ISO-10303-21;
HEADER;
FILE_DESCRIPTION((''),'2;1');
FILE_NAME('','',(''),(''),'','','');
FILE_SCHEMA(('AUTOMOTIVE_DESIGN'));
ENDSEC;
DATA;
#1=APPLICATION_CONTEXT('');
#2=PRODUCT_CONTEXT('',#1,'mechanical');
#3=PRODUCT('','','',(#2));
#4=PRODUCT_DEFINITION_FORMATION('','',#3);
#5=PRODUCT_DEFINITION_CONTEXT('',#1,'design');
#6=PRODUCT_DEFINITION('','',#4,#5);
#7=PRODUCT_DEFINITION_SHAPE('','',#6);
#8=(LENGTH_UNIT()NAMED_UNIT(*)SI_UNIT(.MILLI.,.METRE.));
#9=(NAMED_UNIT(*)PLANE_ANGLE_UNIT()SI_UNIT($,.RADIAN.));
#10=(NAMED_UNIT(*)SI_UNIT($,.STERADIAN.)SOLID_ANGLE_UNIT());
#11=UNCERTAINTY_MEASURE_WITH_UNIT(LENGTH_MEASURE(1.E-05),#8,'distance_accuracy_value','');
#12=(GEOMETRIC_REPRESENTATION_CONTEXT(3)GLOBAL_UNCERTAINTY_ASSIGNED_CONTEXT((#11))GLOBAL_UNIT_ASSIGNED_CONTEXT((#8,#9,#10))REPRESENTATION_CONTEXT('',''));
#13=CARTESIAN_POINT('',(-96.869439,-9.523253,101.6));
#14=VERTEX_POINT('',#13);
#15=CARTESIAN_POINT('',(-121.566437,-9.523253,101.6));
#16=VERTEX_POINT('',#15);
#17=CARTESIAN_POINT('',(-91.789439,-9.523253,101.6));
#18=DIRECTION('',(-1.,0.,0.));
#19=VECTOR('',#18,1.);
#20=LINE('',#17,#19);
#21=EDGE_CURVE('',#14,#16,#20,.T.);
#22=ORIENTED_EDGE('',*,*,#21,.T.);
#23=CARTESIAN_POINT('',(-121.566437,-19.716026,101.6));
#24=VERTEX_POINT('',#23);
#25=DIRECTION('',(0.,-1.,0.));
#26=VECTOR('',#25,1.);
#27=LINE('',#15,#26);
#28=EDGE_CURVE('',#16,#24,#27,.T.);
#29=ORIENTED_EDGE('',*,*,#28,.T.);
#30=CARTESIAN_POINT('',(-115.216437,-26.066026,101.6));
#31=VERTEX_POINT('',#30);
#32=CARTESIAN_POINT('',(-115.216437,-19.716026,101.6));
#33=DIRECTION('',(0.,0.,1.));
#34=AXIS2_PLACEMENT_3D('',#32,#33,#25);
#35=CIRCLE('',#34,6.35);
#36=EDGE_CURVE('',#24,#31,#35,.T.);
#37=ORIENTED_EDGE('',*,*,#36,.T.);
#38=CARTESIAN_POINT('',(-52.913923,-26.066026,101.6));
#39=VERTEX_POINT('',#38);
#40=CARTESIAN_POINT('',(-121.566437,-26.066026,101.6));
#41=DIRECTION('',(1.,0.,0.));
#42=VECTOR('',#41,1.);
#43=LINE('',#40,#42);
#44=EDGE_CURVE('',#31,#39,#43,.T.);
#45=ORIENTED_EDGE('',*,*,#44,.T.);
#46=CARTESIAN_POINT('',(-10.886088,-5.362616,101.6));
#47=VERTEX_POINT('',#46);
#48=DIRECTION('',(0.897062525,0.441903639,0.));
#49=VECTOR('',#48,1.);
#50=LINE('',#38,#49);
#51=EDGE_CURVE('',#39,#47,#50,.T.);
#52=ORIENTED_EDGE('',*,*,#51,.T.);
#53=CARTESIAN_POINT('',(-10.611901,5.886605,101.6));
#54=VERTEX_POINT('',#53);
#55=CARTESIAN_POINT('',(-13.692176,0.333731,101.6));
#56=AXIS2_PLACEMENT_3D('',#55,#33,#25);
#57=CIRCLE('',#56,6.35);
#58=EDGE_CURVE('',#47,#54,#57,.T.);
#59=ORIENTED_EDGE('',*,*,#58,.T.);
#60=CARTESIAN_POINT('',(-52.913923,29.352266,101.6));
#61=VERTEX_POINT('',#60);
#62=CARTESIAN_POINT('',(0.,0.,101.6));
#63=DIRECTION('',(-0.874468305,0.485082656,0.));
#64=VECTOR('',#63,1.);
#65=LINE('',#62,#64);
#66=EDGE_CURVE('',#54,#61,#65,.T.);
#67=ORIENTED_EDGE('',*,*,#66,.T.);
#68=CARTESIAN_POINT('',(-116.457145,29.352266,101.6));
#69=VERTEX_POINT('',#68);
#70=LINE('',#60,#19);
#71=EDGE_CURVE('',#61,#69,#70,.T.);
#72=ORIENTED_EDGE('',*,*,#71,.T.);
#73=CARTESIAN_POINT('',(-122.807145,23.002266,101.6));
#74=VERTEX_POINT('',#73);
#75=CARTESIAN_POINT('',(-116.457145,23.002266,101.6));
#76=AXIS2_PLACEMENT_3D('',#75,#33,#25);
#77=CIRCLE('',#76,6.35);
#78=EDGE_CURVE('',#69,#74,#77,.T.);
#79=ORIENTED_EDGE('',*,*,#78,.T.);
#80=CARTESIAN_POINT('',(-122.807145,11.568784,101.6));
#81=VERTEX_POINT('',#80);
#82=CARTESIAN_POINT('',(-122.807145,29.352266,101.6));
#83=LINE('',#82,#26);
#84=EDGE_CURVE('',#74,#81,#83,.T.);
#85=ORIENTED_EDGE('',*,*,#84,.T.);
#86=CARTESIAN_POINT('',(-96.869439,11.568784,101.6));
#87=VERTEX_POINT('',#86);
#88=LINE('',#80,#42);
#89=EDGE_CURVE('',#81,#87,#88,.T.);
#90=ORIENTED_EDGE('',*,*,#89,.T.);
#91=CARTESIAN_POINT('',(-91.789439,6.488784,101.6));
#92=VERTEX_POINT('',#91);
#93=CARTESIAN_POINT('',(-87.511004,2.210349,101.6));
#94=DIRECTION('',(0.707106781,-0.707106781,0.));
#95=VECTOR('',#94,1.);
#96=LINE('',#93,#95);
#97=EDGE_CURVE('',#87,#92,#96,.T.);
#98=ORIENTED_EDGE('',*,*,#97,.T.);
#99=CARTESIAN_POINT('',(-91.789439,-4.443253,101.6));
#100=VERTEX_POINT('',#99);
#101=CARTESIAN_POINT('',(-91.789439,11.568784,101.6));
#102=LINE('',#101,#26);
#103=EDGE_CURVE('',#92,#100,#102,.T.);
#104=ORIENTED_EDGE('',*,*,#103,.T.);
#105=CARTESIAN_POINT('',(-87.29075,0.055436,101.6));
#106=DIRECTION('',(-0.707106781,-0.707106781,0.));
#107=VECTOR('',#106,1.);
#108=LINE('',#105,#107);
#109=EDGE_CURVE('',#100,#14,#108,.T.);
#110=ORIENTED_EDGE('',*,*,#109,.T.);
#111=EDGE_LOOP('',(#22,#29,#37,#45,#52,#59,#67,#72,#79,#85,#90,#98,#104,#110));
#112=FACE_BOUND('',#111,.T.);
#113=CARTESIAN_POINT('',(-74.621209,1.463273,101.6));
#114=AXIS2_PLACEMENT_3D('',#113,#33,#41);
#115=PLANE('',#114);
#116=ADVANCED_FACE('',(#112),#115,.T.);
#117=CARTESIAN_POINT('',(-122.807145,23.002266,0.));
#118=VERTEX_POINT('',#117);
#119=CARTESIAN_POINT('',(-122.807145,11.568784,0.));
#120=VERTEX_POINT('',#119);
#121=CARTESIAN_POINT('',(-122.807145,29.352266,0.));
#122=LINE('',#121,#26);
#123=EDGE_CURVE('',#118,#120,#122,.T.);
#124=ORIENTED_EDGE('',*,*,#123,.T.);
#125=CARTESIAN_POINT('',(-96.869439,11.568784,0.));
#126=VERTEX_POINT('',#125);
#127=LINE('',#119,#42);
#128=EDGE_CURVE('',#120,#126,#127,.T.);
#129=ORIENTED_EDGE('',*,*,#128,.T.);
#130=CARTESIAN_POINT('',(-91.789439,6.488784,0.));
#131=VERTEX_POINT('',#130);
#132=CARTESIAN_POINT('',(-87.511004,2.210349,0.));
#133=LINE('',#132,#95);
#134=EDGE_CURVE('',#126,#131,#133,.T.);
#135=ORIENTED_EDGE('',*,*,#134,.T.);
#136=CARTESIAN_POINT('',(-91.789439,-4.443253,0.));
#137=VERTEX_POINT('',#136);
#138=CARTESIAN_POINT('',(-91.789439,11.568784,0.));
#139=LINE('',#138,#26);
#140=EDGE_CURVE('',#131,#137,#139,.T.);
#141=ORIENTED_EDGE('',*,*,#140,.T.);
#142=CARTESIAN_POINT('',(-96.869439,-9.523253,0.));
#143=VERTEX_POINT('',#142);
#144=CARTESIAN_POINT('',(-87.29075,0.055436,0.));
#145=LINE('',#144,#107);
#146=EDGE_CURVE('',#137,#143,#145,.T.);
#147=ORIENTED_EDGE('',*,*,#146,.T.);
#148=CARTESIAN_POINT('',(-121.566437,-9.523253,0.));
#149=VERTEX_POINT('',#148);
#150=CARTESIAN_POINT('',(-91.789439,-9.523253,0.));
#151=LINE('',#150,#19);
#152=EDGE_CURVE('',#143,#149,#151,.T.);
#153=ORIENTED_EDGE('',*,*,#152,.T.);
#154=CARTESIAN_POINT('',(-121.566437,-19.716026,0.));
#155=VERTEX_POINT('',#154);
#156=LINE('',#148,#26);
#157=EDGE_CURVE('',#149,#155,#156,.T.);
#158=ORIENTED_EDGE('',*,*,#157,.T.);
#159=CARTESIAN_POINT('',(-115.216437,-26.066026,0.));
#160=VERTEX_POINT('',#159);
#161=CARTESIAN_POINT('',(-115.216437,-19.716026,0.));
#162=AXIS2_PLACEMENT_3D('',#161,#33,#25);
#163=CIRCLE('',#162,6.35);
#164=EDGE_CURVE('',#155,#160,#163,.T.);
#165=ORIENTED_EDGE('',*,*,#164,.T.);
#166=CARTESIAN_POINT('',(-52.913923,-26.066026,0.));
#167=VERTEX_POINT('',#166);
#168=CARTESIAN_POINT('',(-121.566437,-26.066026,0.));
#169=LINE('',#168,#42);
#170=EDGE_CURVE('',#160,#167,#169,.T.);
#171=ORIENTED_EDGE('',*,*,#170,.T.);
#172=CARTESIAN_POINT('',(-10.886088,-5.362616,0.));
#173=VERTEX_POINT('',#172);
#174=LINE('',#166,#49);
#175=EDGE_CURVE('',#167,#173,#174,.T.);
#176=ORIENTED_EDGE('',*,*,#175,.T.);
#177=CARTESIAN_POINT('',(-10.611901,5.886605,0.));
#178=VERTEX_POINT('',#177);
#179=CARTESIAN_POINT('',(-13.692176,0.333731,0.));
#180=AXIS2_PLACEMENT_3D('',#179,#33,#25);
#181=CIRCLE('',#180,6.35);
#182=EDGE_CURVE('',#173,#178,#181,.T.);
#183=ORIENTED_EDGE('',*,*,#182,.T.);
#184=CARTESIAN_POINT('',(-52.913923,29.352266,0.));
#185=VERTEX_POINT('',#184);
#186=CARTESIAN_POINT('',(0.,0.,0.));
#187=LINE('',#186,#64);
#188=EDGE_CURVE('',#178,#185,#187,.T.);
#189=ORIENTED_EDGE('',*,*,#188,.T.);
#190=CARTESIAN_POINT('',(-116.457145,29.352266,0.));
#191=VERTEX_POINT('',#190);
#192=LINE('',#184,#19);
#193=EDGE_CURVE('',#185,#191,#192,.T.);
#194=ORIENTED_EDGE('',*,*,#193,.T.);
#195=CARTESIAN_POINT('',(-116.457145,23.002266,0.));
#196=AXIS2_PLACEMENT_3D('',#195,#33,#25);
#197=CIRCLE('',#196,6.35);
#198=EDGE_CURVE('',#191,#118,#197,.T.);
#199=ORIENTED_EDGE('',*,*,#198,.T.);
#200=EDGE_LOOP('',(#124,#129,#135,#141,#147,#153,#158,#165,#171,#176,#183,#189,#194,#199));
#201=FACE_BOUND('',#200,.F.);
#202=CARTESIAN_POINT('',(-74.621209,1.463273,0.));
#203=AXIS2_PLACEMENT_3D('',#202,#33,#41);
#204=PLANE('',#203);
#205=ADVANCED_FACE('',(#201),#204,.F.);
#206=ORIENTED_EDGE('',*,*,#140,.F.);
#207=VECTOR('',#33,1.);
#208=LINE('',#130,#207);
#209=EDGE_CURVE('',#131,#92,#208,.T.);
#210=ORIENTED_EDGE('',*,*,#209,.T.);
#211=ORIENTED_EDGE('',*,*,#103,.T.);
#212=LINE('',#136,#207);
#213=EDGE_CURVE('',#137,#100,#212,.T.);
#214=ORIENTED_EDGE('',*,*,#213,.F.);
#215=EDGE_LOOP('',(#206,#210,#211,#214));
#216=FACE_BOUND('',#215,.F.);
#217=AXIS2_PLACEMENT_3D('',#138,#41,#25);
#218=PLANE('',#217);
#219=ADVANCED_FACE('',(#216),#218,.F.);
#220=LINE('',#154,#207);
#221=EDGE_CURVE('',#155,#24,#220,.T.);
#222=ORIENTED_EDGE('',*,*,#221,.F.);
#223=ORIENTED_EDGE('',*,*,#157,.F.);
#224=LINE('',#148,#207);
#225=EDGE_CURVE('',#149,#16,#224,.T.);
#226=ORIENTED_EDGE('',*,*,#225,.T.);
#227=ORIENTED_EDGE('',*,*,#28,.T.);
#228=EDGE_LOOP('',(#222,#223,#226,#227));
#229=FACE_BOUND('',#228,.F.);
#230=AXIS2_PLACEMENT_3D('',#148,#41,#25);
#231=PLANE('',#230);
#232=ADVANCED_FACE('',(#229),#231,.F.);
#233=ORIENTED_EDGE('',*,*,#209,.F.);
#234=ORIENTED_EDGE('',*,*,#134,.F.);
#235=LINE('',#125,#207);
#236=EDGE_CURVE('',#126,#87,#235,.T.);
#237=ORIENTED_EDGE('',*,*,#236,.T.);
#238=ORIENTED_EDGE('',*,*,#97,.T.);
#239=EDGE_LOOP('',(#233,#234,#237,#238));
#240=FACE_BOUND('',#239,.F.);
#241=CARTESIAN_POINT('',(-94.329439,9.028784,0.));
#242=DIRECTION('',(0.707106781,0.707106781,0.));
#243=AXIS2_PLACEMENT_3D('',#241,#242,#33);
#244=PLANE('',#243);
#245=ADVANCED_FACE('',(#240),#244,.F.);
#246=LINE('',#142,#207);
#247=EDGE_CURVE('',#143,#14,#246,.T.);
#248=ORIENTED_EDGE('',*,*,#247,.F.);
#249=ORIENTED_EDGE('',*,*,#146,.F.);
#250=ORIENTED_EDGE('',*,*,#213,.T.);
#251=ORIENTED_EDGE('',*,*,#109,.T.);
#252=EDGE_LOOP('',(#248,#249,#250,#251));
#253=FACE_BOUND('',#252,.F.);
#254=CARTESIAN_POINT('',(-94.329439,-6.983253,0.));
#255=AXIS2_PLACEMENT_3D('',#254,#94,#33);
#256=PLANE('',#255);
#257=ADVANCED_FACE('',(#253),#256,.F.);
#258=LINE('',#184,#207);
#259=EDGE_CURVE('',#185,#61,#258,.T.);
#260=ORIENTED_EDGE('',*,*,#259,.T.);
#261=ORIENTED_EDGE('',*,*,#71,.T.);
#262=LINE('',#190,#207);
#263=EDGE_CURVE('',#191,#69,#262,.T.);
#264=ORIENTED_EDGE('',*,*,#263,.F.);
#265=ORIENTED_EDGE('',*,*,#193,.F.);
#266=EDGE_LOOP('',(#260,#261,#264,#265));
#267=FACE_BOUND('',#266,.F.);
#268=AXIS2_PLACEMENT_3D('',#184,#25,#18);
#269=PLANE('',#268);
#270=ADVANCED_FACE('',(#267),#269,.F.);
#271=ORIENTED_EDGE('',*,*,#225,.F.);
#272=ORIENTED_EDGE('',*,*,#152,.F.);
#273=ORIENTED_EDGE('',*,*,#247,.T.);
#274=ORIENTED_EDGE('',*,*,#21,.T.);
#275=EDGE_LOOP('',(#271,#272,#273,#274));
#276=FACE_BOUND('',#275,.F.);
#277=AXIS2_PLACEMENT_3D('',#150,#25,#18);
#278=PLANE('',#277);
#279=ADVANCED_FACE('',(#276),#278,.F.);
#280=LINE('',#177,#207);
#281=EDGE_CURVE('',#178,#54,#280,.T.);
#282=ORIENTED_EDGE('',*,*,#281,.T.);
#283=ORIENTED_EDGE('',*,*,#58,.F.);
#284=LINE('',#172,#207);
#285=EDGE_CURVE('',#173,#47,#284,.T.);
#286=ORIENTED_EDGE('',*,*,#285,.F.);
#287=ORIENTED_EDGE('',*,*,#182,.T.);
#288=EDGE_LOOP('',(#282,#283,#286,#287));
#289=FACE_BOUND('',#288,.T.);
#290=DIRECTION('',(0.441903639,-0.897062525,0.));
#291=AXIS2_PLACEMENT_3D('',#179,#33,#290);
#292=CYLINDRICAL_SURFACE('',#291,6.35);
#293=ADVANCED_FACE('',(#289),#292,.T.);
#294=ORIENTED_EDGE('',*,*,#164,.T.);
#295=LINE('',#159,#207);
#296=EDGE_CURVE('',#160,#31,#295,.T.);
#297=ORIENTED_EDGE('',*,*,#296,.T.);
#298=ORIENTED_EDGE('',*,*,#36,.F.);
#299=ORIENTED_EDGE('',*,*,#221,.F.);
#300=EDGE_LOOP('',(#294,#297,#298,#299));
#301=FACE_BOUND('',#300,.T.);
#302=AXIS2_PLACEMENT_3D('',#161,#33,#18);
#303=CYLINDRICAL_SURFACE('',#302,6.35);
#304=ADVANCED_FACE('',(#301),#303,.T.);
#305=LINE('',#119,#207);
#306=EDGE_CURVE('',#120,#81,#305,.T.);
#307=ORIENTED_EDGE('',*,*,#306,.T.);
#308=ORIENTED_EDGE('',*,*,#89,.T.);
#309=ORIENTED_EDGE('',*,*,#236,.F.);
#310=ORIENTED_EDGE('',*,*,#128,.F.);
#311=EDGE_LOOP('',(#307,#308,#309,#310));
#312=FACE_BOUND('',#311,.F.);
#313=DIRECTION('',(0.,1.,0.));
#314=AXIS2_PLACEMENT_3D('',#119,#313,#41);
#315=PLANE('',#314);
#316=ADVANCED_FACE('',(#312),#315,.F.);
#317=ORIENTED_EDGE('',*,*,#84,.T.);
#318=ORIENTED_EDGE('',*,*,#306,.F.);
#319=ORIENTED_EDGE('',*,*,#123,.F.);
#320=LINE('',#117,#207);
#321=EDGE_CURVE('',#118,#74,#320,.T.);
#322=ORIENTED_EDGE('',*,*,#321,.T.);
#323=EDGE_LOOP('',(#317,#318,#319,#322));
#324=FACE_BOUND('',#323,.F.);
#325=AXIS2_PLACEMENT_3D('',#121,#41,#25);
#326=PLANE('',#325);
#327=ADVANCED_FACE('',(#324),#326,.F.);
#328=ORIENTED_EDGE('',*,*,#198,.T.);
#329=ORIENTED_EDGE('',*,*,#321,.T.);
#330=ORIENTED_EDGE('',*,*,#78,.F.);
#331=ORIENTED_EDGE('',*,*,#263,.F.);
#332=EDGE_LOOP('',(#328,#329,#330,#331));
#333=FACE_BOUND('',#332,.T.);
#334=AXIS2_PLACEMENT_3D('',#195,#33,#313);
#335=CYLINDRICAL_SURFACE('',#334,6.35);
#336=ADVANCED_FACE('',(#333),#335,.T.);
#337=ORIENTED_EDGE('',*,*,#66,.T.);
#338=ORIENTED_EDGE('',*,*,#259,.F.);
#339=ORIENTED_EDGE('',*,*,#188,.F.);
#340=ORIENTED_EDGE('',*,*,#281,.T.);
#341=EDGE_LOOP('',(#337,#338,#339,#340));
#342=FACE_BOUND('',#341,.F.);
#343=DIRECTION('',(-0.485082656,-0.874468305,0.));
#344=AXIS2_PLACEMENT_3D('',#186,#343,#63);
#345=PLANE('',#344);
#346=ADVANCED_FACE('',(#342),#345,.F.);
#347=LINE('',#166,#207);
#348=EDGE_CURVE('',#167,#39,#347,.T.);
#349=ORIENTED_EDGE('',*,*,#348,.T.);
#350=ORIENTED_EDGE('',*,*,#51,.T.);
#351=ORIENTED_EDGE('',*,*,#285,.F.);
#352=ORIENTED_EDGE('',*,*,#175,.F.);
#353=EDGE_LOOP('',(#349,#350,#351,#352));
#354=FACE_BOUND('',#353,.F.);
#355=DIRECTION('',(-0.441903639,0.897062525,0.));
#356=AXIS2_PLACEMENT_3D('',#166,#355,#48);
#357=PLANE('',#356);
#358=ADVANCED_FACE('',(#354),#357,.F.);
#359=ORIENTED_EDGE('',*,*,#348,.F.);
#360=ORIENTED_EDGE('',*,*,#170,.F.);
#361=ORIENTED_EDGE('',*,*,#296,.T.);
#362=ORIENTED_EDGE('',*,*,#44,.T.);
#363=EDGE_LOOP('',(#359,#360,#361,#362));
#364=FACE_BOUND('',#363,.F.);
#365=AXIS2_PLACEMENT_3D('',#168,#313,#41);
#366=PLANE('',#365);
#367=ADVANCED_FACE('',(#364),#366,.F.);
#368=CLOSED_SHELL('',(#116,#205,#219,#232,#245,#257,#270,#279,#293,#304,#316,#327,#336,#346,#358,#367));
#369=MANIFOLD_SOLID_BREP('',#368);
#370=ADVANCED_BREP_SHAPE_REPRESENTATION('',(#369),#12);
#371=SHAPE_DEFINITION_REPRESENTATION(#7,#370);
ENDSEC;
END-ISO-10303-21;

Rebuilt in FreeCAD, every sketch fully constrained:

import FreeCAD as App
import Part
import Sketcher
from FreeCAD import Vector
Q = App.Units.Quantity


def edges_at(feature, points):
    """Names of the edges that pass closest to the given points."""
    edges = feature.Shape.Edges
    near = lambda p: min(range(len(edges)), key=lambda i: edges[i].distToShape(Part.Vertex(*p))[0])
    return sorted({f"Edge{near(p) + 1}" for p in points})


def add_polygon(sketch, points):
    """Adds a closed chain of lines whose ends are joined by coincident constraints."""
    first, n = sketch.GeometryCount, len(points)
    for a, b in zip(points, points[1:] + points[:1]):
        sketch.addGeometry(Part.LineSegment(App.Vector(*a, 0), App.Vector(*b, 0)), False)
    for i in range(n):
        sketch.addConstraint(Sketcher.Constraint("Coincident", first + i, 2, first + (i + 1) % n, 1))

doc = App.newDocument("Part")
body = doc.addObject("PartDesign::Body", "Body")

# Sketch on XY plane
sketch1 = doc.addObject("Sketcher::SketchObject", "Sketch")
body.addObject(sketch1)
sketch1.AttachmentSupport = (doc.XY_Plane, [""])
sketch1.MapMode = "FlatFace"
add_polygon(sketch1, [(-53, 29), (-123, 29), (-123, 12), (-92, 12), (-92, -10), (-122, -10), (-122, -26), (-53, -26), (0, 0)])  # lines 0-8
sketch1.addConstraint([
    Sketcher.Constraint("Horizontal", 0),
    Sketcher.Constraint("Vertical", 1),
    Sketcher.Constraint("Horizontal", 2),
    Sketcher.Constraint("Vertical", 3),
    Sketcher.Constraint("Horizontal", 4),
    Sketcher.Constraint("Vertical", 5),
    Sketcher.Constraint("Horizontal", 6),
    Sketcher.Constraint("Coincident", 7, 2, -1, 1),
    Sketcher.Constraint("Vertical", 6, 2, 8, 2),
    Sketcher.Constraint("DistanceY", 1, 2, 1, 1, Q("17.783482 mm")),
    Sketcher.Constraint("Distance", 7, Q("58.985769 mm")),
    Sketcher.Constraint("DistanceX", 0, 2, 0, 1, Q("69.893222 mm")),
    Sketcher.Constraint("DistanceX", 2, 1, 2, 2, Q("31.017706 mm")),
    Sketcher.Constraint("DistanceX", 4, 2, 4, 1, Q("29.776998 mm")),
    Sketcher.Constraint("DistanceY", 3, 2, 3, 1, Q("21.092037 mm")),
    Sketcher.Constraint("DistanceY", 5, 2, 5, 1, Q("16.542773 mm")),
    Sketcher.Constraint("DistanceX", 2, 2, -1, 1, Q("91.789439 mm")),
])
pad1 = doc.addObject("PartDesign::Pad", "Pad")
body.addObject(pad1)
pad1.Profile = sketch1
pad1.Length = Q("4 in")
doc.recompute()

fillet = doc.addObject("PartDesign::Fillet", "Fillet")
body.addObject(fillet)
fillet.Base = (pad1, edges_at(pad1, [(-121.566, -26.066, 50.8), (-122.807, 29.352, 50.8)]))
fillet.Radius = Q("0.25 in")
doc.recompute()

chamfer = doc.addObject("PartDesign::Chamfer", "Chamfer")
body.addObject(chamfer)
chamfer.Base = (fillet, edges_at(fillet, [(-91.789, 11.569, 50.8)]))
chamfer.ChamferType = "Two distances"
chamfer.Size = Q("0.2 in")
chamfer.Size2 = Q("0.2 in")
doc.recompute()

chamfer2 = doc.addObject("PartDesign::Chamfer", "Chamfer001")
body.addObject(chamfer2)
chamfer2.Base = (chamfer, edges_at(chamfer, [(-91.789, -9.523, 50.8)]))
chamfer2.ChamferType = "Two distances"
chamfer2.Size = Q("0.2 in")
chamfer2.Size2 = Q("0.2 in")
doc.recompute()

fillet2 = doc.addObject("PartDesign::Fillet", "Fillet001")
body.addObject(fillet2)
fillet2.Base = (chamfer2, edges_at(chamfer2, [(0, 0, 50.8)]))
fillet2.Radius = Q("0.25 in")

doc.recompute()
